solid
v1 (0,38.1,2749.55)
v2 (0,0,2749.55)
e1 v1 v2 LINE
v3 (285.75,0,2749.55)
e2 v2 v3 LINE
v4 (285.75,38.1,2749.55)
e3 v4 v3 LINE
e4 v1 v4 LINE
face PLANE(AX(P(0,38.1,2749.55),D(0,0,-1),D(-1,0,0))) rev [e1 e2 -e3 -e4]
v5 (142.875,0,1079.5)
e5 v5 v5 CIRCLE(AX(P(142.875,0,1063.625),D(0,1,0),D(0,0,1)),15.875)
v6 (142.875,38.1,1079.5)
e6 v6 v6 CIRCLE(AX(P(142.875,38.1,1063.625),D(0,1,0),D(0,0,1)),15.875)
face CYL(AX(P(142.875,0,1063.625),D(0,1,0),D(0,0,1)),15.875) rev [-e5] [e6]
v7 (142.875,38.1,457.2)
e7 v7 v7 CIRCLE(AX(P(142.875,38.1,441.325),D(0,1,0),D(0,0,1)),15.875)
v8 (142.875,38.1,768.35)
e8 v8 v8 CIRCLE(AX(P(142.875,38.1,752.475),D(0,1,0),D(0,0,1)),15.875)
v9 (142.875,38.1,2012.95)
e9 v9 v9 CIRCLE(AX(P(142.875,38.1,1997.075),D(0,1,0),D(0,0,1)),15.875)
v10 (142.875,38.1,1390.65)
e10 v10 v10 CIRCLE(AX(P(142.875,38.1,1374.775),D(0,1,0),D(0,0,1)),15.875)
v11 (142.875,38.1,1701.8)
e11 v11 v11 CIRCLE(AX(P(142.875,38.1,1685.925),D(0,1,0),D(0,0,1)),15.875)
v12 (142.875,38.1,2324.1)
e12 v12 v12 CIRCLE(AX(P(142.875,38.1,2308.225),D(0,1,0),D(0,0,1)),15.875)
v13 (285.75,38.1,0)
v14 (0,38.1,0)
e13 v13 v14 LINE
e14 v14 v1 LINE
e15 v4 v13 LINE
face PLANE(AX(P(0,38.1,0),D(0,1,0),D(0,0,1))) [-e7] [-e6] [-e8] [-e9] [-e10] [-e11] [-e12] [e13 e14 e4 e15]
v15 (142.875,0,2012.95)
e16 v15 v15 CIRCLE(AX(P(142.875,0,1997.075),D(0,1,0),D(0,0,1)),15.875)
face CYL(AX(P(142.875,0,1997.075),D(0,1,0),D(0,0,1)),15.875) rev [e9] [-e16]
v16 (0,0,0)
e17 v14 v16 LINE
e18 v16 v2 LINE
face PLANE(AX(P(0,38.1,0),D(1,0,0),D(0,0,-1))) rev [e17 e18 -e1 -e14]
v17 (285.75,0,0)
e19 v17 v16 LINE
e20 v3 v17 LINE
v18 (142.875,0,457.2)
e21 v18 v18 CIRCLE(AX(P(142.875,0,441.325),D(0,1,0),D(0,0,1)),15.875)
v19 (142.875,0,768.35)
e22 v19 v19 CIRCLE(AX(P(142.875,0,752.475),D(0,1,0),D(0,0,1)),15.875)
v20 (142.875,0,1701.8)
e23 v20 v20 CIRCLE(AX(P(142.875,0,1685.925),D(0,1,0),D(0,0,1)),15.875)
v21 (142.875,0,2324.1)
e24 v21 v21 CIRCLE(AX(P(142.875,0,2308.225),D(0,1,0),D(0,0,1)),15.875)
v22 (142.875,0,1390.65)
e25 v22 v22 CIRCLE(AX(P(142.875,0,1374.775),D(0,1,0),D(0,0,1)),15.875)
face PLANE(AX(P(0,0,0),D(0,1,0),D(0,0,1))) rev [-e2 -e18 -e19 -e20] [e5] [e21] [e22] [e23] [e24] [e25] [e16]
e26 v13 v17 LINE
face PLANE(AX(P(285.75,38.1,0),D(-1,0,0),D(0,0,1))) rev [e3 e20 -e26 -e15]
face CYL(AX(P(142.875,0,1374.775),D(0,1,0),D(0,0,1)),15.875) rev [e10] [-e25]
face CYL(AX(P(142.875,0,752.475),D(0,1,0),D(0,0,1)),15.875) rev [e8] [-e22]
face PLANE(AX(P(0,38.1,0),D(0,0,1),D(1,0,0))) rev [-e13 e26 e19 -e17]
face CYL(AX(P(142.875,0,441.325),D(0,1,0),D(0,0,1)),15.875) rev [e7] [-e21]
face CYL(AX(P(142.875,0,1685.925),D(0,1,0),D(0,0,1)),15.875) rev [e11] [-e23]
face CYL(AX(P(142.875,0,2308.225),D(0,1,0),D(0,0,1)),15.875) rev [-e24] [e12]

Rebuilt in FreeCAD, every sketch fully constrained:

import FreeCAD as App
import Part
import Sketcher
Q = App.Units.Quantity


def add_polygon(sketch, points):
    """Adds a closed chain of lines whose ends are joined by coincident constraints."""
    first, n = sketch.GeometryCount, len(points)
    for a, b in zip(points, points[1:] + points[:1]):
        sketch.addGeometry(Part.LineSegment(App.Vector(*a, 0), App.Vector(*b, 0)), False)
    for i in range(n):
        sketch.addConstraint(Sketcher.Constraint("Coincident", first + i, 2, first + (i + 1) % n, 1))

doc = App.newDocument("Part")
body = doc.addObject("PartDesign::Body", "Body")

sketch1 = body.newObject("Sketcher::SketchObject", "Sketch")
sketch1.AttachmentSupport = (doc.getObject("XZ_Plane"), [""])
sketch1.MapMode = "FlatFace"
add_polygon(sketch1, [(0, 0), (0, 2750), (286, 2750), (286, 0)])
sketch1.addConstraint(Sketcher.Constraint("Vertical", 0))
sketch1.addConstraint(Sketcher.Constraint("Horizontal", 1))
sketch1.addConstraint(Sketcher.Constraint("Vertical", 2))
sketch1.addConstraint(Sketcher.Constraint("Horizontal", 3))
sketch1.addConstraint(Sketcher.Constraint("Coincident", 3, 2, -1, 1))
sketch1.addConstraint(Sketcher.Constraint("DistanceX", 1, 1, 1, 2, Q("11.25 in")))
sketch1.addConstraint(Sketcher.Constraint("DistanceY", 0, 1, 0, 2, Q("108.25 in")))
pad1 = body.newObject("PartDesign::Pad", "Pad")
pad1.Profile = sketch1
pad1.Length = Q("1.5 in")
pad1.Reversed = True

sketch2 = body.newObject("Sketcher::SketchObject", "Sketch001")
sketch2.AttachmentSupport = (doc.getObject("XZ_Plane"), [""])
sketch2.MapMode = "FlatFace"
sketch2.AttachmentOffset = App.Placement(App.Vector(0, 0, -1.5 * 25.4), App.Rotation())
sketch2.addGeometry(Part.Circle(App.Vector(143, 2308, 0), App.Vector(0, 0, 1), 16), False)
sketch2.addGeometry(Part.Circle(App.Vector(143, 1997, 0), App.Vector(0, 0, 1), 16), False)
sketch2.addGeometry(Part.Circle(App.Vector(143, 1686, 0), App.Vector(0, 0, 1), 16), False)
sketch2.addGeometry(Part.Circle(App.Vector(143, 1375, 0), App.Vector(0, 0, 1), 16), False)
sketch2.addGeometry(Part.Circle(App.Vector(143, 1064, 0), App.Vector(0, 0, 1), 16), False)
sketch2.addGeometry(Part.Circle(App.Vector(143, 752, 0), App.Vector(0, 0, 1), 16), False)
sketch2.addGeometry(Part.Circle(App.Vector(143, 441, 0), App.Vector(0, 0, 1), 16), False)
sketch2.addConstraint(Sketcher.Constraint("Equal", 0, 1))
sketch2.addConstraint(Sketcher.Constraint("Equal", 1, 2))
sketch2.addConstraint(Sketcher.Constraint("Equal", 2, 3))
sketch2.addConstraint(Sketcher.Constraint("Equal", 3, 4))
sketch2.addConstraint(Sketcher.Constraint("Equal", 4, 5))
sketch2.addConstraint(Sketcher.Constraint("Equal", 5, 6))
sketch2.addConstraint(Sketcher.Constraint("Vertical", 0, 3, 1, 3))
sketch2.addConstraint(Sketcher.Constraint("Vertical", 1, 3, 2, 3))
sketch2.addConstraint(Sketcher.Constraint("Vertical", 2, 3, 3, 3))
sketch2.addConstraint(Sketcher.Constraint("Vertical", 3, 3, 4, 3))
sketch2.addConstraint(Sketcher.Constraint("Vertical", 4, 3, 5, 3))
sketch2.addConstraint(Sketcher.Constraint("Vertical", 5, 3, 6, 3))
sketch2.addConstraint(Sketcher.Constraint("Diameter", 0, Q("1.25 in")))
sketch2.addConstraint(Sketcher.Constraint("DistanceY", 4, 3, 0, 3, Q("49 in")))
sketch2.addConstraint(Sketcher.Constraint("DistanceY", 5, 3, 1, 3, Q("49 in")))
sketch2.addConstraint(Sketcher.Constraint("DistanceY", 6, 3, 2, 3, Q("49 in")))
sketch2.addConstraint(Sketcher.Constraint("DistanceY", 2, 3, 0, 3, Q("24.5 in")))
sketch2.addConstraint(Sketcher.Constraint("DistanceY", 3, 3, 1, 3, Q("24.5 in")))
sketch2.addConstraint(Sketcher.Constraint("DistanceY", 1, 3, 0, 3, Q("12.25 in")))
sketch2.addConstraint(Sketcher.Constraint("DistanceX", -1, 1, 0, 3, Q("5.625 in")))
sketch2.addConstraint(Sketcher.Constraint("DistanceY", -1, 1, 0, 3, Q("90.875 in")))
pocket1 = body.newObject("PartDesign::Pocket", "Pocket")
pocket1.Profile = sketch2
pocket1.Type = "ThroughAll"
pocket1.Reversed = True

doc.recompute()
